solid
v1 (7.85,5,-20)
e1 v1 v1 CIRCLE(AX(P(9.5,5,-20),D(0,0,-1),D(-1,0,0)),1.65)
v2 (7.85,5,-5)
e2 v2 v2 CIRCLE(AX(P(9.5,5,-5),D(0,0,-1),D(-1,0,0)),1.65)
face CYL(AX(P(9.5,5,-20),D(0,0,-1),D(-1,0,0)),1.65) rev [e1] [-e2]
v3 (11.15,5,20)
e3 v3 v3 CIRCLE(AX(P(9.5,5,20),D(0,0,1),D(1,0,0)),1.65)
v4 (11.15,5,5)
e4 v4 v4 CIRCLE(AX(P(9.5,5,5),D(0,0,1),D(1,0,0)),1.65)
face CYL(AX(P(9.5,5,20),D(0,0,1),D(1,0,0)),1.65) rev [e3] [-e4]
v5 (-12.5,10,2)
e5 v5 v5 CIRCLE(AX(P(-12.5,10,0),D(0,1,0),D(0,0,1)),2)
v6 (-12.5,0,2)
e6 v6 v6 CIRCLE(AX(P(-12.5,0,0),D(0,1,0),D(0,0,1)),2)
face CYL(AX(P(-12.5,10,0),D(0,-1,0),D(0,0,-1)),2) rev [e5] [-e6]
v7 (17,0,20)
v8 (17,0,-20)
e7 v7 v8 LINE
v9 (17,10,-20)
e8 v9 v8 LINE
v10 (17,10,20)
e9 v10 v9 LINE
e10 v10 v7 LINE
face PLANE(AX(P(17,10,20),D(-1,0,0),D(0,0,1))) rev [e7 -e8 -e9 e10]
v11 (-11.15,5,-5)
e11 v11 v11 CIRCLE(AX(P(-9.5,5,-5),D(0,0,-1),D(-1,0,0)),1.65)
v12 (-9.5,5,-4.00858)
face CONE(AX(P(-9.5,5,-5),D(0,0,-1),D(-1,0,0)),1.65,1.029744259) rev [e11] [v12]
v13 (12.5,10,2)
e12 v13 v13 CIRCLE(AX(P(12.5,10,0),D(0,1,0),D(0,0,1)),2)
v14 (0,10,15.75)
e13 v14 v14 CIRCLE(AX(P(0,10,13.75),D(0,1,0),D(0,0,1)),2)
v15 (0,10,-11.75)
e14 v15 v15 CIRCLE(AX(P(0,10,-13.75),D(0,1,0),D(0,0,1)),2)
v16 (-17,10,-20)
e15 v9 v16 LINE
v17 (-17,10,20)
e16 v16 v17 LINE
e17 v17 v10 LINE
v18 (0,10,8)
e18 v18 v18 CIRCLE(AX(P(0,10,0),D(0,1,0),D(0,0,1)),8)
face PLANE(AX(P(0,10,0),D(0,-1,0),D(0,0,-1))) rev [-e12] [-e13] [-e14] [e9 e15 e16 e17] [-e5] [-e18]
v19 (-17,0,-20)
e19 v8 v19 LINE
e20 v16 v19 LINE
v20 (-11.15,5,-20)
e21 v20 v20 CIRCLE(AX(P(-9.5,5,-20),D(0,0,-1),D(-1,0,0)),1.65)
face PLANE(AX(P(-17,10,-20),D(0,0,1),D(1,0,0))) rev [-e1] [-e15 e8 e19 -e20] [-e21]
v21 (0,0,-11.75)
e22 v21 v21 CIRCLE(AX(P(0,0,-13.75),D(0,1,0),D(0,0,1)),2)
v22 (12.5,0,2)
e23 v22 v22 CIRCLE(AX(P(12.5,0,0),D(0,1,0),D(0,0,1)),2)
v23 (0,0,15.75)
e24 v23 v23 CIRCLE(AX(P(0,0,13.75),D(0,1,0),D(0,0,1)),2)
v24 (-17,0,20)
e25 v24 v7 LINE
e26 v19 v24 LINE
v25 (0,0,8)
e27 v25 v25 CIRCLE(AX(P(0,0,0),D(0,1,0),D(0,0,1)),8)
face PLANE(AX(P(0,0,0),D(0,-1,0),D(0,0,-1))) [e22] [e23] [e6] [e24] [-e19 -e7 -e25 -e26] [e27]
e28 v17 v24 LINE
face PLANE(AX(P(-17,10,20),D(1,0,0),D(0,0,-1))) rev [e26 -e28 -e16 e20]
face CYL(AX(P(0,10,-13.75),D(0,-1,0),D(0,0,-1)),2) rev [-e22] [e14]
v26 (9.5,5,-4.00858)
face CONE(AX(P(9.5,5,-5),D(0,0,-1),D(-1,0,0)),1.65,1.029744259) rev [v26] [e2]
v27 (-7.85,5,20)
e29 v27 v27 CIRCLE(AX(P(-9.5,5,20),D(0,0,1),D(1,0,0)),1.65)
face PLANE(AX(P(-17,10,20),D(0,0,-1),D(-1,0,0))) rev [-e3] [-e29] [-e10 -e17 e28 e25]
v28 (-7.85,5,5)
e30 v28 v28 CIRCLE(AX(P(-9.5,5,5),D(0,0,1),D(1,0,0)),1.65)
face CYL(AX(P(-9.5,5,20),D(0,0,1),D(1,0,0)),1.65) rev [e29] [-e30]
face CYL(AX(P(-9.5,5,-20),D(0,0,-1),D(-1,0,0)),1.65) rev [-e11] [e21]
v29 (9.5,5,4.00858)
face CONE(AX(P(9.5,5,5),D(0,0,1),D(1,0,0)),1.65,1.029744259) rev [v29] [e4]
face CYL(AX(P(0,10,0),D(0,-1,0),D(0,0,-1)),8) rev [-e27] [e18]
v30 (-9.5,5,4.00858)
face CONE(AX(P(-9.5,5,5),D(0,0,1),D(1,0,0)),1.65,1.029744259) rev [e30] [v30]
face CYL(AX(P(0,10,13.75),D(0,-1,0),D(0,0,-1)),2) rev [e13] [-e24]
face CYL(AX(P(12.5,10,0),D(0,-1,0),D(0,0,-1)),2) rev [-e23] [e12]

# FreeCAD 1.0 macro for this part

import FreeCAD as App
import Part
import Sketcher


def add_polygon(sketch, points):
    """Adds a closed chain of lines whose ends are joined by coincident constraints."""
    first, n = sketch.GeometryCount, len(points)
    for a, b in zip(points, points[1:] + points[:1]):
        sketch.addGeometry(Part.LineSegment(App.Vector(*a, 0), App.Vector(*b, 0)), False)
    for i in range(n):
        sketch.addConstraint(Sketcher.Constraint("Coincident", first + i, 2, first + (i + 1) % n, 1))

doc = App.newDocument("Part")
body = doc.addObject("PartDesign::Body", "Body")

# Sketch on XZ plane
sketch1 = body.newObject("Sketcher::SketchObject", "Sketch")
sketch1.AttachmentSupport = (doc.getObject("XZ_Plane"), [""])
sketch1.MapMode = "FlatFace"
add_polygon(sketch1, [(-17, -20), (-17, 20), (17, 20), (17, -20)])  # lines 0-3
sketch1.addGeometry(Part.Circle(App.Vector(0, 13.8, 0), App.Vector(0, 0, 1), 2), False)  # 4
sketch1.addGeometry(Part.Circle(App.Vector(-12.5, 0, 0), App.Vector(0, 0, 1), 2), False)  # 5
sketch1.addGeometry(Part.Circle(App.Vector(0, 0, 0), App.Vector(0, 0, 1), 8), False)  # 6
sketch1.addGeometry(Part.Circle(App.Vector(12.5, 0, 0), App.Vector(0, 0, 1), 2), False)  # 7
sketch1.addGeometry(Part.Circle(App.Vector(0, -13.8, 0), App.Vector(0, 0, 1), 2), False)  # 8
sketch1.addConstraint([
    Sketcher.Constraint("Vertical", 0),
    Sketcher.Constraint("Horizontal", 1),
    Sketcher.Constraint("Vertical", 2),
    Sketcher.Constraint("Horizontal", 3),
    Sketcher.Constraint("Coincident", 6, 3, -1, 1),
    Sketcher.Constraint("Equal", 4, 5),
    Sketcher.Constraint("Equal", 5, 7),
    Sketcher.Constraint("Equal", 7, 8),
    Sketcher.Constraint("Symmetric", 5, 3, 7, 3, -1, 1),
    Sketcher.Constraint("Symmetric", 4, 3, 8, 3, -1, 1),
    Sketcher.Constraint("Symmetric", 0, 2, 2, 2, -1, 1),
    Sketcher.Constraint("PointOnObject", 4, 3, -2),
    Sketcher.Constraint("PointOnObject", 5, 3, -1),
    Sketcher.Constraint("Diameter", 4, 4.0),
    Sketcher.Constraint("Diameter", 6, 16.0),
    Sketcher.Constraint("DistanceX", 1, 1, 1, 2, 34.0),
    Sketcher.Constraint("DistanceY", 0, 1, 0, 2, 40.0),
    Sketcher.Constraint("DistanceX", 5, 3, 7, 3, 25.0),
    Sketcher.Constraint("DistanceY", 8, 3, 4, 3, 27.5),
])
pad1 = body.newObject("PartDesign::Pad", "Pad")
pad1.Profile = sketch1
pad1.Length = 10
pad1.Reversed = True

# Sketch on XY plane
sketch2 = body.newObject("Sketcher::SketchObject", "Sketch001")
sketch2.AttachmentSupport = (doc.getObject("XY_Plane"), [""])
sketch2.MapMode = "FlatFace"
sketch2.AttachmentOffset = App.Placement(App.Vector(0, 0, -20), App.Rotation())
sketch2.addGeometry([
    Part.Circle(App.Vector(9.5, 5, 0), App.Vector(0, 0, 1), 1.6),
    Part.Circle(App.Vector(-9.5, 5, 0), App.Vector(0, 0, 1), 1.6),
], False)
sketch2.addConstraint([
    Sketcher.Constraint("Equal", 0, 1),
    Sketcher.Constraint("Symmetric", 0, 3, 1, 3, -2),
    Sketcher.Constraint("Diameter", 0, 3.3),
    Sketcher.Constraint("DistanceY", -1, 1, 0, 3, 5.0),
    Sketcher.Constraint("DistanceX", 1, 3, 0, 3, 19.0),
])
doc.recompute()
hole = body.newObject("PartDesign::Hole", "Hole")
hole.Profile = sketch2
hole.ThreadType = "None"
hole.Diameter = 3.3
hole.DepthType = "Dimension"
hole.Depth = 15
hole.DrillPoint = "Angled"
hole.DrillPointAngle = 118
hole.Reversed = True

# Sketch on XY plane
sketch3 = body.newObject("Sketcher::SketchObject", "Sketch002")
sketch3.AttachmentSupport = (doc.getObject("XY_Plane"), [""])
sketch3.MapMode = "FlatFace"
sketch3.AttachmentOffset = App.Placement(App.Vector(0, 0, 20), App.Rotation())
sketch3.addGeometry([
    Part.Circle(App.Vector(-9.5, 5, 0), App.Vector(0, 0, 1), 1.6),
    Part.Circle(App.Vector(9.5, 5, 0), App.Vector(0, 0, 1), 1.6),
], False)
sketch3.addConstraint([
    Sketcher.Constraint("Equal", 0, 1),
    Sketcher.Constraint("Symmetric", 0, 3, 1, 3, -2),
    Sketcher.Constraint("Diameter", 0, 3.3),
    Sketcher.Constraint("DistanceY", -1, 1, 0, 3, 5.0),
    Sketcher.Constraint("DistanceX", 0, 3, 1, 3, 19.0),
])
doc.recompute()
hole2 = body.newObject("PartDesign::Hole", "Hole001")
hole2.Profile = sketch3
hole2.ThreadType = "None"
hole2.Diameter = 3.3
hole2.DepthType = "Dimension"
hole2.Depth = 15
hole2.DrillPoint = "Angled"
hole2.DrillPointAngle = 118

doc.recompute()
